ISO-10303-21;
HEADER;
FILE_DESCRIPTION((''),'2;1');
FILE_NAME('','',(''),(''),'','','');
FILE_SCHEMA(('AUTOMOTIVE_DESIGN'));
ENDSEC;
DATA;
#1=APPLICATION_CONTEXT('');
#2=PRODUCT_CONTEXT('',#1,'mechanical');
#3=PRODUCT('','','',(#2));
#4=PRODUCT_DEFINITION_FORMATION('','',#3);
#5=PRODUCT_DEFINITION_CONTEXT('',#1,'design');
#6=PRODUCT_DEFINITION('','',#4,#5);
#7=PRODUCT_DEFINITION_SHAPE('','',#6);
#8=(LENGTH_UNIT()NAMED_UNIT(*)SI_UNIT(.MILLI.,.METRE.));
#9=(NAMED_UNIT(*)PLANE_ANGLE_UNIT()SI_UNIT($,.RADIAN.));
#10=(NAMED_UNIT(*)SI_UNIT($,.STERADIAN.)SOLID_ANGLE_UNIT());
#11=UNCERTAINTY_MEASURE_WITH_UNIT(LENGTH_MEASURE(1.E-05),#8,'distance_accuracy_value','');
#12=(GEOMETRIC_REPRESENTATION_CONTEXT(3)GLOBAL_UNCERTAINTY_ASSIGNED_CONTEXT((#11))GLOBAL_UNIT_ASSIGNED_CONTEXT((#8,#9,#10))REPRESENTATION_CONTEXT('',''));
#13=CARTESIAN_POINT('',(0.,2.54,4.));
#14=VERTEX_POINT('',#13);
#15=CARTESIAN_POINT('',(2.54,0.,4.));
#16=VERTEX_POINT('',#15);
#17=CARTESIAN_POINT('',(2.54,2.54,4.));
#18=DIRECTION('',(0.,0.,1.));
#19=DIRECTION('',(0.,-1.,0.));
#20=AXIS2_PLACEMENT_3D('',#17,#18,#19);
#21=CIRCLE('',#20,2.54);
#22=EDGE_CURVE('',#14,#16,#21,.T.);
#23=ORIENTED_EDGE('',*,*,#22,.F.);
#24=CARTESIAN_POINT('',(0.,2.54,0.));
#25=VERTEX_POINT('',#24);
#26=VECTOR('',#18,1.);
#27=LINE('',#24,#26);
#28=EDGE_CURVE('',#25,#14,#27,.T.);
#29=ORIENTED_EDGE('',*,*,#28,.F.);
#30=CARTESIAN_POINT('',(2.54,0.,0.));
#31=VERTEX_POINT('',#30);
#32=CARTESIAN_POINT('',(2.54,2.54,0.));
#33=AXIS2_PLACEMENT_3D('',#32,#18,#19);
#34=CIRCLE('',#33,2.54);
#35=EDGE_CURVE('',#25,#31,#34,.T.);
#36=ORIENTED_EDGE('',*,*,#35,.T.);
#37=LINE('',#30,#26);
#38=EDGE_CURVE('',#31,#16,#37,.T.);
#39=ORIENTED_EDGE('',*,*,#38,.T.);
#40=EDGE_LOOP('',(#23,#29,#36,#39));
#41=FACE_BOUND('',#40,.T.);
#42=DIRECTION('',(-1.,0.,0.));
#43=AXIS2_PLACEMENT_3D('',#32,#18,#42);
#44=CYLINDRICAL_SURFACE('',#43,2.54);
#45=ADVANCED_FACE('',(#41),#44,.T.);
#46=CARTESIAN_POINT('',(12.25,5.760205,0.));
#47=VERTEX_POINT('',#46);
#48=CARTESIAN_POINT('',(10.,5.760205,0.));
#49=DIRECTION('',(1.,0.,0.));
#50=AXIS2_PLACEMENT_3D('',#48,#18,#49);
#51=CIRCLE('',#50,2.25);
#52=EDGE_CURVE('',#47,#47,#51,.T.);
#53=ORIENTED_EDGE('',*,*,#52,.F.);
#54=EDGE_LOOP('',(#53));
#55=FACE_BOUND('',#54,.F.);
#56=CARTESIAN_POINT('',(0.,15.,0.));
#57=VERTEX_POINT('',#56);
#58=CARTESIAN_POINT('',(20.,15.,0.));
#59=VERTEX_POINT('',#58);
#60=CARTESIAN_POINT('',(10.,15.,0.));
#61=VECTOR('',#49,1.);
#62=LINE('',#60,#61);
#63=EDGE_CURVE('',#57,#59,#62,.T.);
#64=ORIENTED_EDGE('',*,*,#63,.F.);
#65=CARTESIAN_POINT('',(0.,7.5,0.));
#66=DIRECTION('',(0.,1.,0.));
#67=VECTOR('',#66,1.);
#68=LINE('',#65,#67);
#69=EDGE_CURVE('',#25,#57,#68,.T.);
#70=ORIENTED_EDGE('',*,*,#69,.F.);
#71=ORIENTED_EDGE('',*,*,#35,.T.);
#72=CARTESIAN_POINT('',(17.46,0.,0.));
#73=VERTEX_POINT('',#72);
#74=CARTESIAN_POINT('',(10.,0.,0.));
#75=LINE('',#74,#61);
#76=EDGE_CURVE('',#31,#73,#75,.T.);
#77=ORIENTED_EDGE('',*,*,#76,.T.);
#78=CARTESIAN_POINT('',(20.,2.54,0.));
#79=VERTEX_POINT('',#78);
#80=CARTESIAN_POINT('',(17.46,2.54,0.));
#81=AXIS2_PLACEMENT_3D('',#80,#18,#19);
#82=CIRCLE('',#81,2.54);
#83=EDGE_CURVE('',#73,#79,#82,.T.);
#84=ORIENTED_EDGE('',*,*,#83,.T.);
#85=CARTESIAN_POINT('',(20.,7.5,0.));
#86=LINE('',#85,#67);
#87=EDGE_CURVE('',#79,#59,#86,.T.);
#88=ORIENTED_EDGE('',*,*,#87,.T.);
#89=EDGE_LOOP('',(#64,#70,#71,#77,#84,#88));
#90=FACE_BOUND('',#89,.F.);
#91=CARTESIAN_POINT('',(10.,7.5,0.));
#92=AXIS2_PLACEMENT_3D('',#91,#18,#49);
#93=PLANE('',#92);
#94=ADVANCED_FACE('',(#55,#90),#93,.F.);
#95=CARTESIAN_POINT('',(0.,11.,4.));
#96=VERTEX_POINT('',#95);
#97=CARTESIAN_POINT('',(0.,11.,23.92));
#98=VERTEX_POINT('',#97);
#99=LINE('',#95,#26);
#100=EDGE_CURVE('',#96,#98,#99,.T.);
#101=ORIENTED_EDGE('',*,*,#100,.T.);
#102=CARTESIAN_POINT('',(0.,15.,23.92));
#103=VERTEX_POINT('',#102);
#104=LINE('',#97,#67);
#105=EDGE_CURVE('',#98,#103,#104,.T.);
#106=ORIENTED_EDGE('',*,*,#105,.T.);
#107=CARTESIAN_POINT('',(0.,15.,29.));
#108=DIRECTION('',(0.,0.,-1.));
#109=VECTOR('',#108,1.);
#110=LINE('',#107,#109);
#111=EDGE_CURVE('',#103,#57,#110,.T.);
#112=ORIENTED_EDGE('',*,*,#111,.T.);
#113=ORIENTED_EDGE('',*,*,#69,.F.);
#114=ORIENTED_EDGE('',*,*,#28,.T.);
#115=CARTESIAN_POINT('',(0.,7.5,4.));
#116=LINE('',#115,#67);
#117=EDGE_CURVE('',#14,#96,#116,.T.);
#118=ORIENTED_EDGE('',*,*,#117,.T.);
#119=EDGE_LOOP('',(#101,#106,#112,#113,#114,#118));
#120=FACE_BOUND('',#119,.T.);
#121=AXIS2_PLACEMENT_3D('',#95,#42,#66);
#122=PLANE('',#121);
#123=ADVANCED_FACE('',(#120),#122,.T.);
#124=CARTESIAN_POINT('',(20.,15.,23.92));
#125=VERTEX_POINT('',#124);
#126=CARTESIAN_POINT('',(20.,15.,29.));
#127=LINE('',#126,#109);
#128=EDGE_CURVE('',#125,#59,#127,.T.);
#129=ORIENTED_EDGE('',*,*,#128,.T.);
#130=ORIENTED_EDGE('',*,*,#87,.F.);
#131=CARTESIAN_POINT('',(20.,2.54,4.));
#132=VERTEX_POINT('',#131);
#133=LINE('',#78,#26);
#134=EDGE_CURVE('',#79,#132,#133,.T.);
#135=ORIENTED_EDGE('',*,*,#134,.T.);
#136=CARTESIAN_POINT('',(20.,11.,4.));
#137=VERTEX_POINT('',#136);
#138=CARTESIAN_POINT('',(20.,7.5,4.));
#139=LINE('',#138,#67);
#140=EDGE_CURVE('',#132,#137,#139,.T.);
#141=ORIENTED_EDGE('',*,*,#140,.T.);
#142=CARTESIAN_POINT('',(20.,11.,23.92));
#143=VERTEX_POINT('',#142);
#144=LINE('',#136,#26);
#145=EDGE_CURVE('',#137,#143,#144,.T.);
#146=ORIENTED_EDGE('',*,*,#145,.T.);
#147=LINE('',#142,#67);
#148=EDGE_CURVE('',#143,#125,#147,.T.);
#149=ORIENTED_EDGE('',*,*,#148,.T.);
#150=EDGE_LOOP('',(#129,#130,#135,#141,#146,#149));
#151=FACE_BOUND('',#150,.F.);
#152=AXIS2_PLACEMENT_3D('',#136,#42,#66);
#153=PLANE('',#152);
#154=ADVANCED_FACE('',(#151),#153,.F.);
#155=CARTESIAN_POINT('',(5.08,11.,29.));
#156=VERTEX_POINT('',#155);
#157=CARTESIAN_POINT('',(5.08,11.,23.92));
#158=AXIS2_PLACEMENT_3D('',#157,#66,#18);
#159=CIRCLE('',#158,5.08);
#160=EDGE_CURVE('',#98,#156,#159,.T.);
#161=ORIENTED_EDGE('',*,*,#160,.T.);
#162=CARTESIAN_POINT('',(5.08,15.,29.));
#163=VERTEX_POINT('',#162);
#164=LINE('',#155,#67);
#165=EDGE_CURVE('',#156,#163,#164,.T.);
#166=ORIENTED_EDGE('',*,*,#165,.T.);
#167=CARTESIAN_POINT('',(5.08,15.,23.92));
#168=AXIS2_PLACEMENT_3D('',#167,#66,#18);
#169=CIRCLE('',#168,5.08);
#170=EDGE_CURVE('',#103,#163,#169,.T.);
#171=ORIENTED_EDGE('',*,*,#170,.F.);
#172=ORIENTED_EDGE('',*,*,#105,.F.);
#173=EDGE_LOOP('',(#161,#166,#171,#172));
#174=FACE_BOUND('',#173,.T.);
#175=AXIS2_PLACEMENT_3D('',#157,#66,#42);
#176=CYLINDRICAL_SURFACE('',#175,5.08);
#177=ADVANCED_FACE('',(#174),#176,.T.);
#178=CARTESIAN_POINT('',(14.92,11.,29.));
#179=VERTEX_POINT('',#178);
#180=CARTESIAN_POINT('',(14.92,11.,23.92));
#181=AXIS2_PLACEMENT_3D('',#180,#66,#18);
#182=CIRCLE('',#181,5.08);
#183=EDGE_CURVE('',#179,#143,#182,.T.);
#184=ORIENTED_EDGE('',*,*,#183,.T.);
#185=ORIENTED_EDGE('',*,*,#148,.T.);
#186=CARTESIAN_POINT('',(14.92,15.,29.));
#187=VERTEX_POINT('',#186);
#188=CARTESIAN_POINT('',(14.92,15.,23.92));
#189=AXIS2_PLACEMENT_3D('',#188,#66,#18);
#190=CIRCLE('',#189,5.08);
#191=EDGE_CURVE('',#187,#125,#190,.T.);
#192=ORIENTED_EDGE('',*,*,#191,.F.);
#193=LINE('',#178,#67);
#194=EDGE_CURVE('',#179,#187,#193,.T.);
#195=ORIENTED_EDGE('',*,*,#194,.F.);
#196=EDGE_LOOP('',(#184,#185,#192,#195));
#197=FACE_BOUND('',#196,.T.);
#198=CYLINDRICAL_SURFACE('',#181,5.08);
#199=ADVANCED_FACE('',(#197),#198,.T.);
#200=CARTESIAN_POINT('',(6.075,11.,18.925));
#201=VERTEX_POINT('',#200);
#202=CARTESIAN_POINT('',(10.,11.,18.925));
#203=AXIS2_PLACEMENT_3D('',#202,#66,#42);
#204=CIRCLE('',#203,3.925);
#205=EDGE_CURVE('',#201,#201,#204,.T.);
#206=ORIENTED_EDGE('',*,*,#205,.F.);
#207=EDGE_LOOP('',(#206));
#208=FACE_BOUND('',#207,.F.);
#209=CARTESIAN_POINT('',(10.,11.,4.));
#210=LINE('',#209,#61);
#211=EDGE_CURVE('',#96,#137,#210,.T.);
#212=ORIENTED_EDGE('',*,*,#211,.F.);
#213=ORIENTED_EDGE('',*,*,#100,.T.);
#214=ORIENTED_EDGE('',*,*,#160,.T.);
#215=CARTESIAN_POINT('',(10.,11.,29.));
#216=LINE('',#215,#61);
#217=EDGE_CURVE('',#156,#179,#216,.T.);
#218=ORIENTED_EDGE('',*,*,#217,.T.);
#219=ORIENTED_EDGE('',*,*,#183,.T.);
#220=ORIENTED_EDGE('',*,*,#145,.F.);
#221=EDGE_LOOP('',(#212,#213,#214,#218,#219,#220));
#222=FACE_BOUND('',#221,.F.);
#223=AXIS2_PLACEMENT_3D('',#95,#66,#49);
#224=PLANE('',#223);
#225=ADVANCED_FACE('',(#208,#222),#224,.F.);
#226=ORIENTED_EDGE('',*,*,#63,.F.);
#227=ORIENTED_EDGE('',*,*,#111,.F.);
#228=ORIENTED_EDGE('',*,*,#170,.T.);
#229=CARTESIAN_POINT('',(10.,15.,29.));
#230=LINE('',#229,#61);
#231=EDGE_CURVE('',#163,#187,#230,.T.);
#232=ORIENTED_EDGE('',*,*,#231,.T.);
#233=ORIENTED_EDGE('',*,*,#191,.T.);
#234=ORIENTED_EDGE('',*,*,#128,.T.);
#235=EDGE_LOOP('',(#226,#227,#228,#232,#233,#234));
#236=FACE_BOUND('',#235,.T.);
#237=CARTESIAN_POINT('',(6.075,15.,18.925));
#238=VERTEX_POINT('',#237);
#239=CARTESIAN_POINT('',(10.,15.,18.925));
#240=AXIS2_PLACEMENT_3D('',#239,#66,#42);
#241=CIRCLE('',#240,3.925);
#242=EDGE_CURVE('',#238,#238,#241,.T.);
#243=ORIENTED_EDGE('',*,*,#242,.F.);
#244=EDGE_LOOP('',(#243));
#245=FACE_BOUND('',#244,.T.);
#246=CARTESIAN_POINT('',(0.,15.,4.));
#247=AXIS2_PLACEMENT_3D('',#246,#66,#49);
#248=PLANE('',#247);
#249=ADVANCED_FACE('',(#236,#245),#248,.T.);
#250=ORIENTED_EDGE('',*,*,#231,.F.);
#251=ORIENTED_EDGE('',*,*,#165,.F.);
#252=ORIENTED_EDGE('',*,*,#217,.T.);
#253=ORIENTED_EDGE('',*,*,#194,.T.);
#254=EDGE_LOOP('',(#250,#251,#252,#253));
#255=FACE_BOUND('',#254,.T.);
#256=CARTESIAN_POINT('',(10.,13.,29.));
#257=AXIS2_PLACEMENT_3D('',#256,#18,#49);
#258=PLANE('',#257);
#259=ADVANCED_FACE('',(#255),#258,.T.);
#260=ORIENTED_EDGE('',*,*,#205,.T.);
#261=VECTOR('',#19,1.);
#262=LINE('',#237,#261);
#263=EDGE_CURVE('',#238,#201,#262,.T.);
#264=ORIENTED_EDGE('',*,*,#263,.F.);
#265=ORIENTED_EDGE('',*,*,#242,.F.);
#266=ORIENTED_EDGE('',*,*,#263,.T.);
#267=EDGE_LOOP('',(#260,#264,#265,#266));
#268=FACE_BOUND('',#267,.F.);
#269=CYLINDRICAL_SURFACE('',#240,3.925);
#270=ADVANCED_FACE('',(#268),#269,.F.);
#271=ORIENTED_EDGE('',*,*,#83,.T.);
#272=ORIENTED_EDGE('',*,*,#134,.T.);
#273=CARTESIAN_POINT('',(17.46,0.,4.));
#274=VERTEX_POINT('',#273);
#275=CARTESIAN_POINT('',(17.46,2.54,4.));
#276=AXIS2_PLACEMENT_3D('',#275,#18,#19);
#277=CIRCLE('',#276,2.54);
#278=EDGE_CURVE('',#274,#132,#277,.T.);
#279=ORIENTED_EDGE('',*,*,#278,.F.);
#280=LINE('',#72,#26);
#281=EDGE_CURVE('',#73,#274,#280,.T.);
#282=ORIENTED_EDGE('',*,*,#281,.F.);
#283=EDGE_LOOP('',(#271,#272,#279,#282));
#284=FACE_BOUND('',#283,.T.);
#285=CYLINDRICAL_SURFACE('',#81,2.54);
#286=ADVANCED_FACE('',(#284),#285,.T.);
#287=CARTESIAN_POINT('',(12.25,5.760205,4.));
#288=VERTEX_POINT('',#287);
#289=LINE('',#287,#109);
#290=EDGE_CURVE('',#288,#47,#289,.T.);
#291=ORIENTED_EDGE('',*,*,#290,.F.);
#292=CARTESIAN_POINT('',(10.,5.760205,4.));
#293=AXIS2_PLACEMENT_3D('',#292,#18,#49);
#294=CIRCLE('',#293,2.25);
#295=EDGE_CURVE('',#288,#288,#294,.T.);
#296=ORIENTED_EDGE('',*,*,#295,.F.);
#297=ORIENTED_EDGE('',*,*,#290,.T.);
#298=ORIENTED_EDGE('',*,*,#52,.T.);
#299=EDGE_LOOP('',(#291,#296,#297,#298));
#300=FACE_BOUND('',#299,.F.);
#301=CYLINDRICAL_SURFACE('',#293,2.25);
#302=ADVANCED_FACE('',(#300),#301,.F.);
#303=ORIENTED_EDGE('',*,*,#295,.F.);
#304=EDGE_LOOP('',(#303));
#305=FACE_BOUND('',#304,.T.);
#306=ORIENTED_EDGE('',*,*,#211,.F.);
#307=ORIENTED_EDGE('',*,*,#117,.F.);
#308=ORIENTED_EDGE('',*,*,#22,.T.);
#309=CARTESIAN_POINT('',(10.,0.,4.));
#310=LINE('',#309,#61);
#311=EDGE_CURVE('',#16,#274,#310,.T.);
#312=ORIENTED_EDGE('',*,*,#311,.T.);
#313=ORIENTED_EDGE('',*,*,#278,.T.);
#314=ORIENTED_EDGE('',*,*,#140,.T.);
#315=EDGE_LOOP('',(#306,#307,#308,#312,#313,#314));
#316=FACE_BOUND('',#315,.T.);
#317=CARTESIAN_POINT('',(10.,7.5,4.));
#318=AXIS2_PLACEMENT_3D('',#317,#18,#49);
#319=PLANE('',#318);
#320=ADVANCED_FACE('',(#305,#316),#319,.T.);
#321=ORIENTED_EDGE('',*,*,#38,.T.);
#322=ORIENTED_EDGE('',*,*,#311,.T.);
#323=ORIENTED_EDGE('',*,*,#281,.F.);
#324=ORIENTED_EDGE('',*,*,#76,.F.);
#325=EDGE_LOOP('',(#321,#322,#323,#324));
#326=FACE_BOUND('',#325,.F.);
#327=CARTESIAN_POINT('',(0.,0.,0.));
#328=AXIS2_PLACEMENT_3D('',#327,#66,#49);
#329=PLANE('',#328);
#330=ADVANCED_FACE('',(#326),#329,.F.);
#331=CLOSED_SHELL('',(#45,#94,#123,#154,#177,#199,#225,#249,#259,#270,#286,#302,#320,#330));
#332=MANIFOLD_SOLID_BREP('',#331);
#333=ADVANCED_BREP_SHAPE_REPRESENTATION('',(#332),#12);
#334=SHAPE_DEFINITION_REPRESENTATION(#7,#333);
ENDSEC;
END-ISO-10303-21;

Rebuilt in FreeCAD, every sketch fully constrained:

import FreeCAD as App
import Part
import Sketcher
from FreeCAD import Vector
Q = App.Units.Quantity


def edges_at(feature, points):
    """Names of the edges that pass closest to the given points."""
    edges = feature.Shape.Edges
    near = lambda p: min(range(len(edges)), key=lambda i: edges[i].distToShape(Part.Vertex(*p))[0])
    return sorted({f"Edge{near(p) + 1}" for p in points})

doc = App.newDocument("Part")
body = doc.addObject("PartDesign::Body", "Body")

sketch1 = body.newObject("Sketcher::SketchObject", "Sketch")
sketch1.AttachmentSupport = (doc.getObject("XY_Plane"), [""])
sketch1.MapMode = "FlatFace"
sketch1.addGeometry([
    Part.LineSegment(Vector(0, 15, 0), Vector(0, 0, 0)),
    Part.LineSegment(Vector(0, 0, 0), Vector(20, 0, 0)),
    Part.LineSegment(Vector(20, 0, 0), Vector(20, 15, 0)),
    Part.LineSegment(Vector(20, 15, 0), Vector(0, 15, 0)),
], False)
sketch1.addConstraint([
    Sketcher.Constraint("Coincident", 0, 2, 1, 1),
    Sketcher.Constraint("Coincident", 1, 2, 2, 1),
    Sketcher.Constraint("Coincident", 2, 2, 3, 1),
    Sketcher.Constraint("Coincident", 3, 2, 0, 1),
    Sketcher.Constraint("Vertical", 0),
    Sketcher.Constraint("Horizontal", 1),
    Sketcher.Constraint("Vertical", 2),
    Sketcher.Constraint("Horizontal", 3),
    Sketcher.Constraint("Coincident", 0, 2, -1, 1),
    Sketcher.Constraint("DistanceX", 1, 1, 1, 2, Q("20 mm")),
    Sketcher.Constraint("DistanceY", 0, 2, 0, 1, Q("15 mm")),
])
pad1 = body.newObject("PartDesign::Pad", "Pad")
pad1.Profile = sketch1
pad1.Length = 4

sketch2 = body.newObject("Sketcher::SketchObject", "Sketch001")
sketch2.AttachmentSupport = (doc.getObject("XY_Plane"), [""])
sketch2.MapMode = "FlatFace"
sketch2.AttachmentOffset = App.Placement(Vector(0, 0, 4), App.Rotation())
sketch2.addGeometry([
    Part.LineSegment(Vector(0, 15, 0), Vector(0, 11, 0)),
    Part.LineSegment(Vector(0, 11, 0), Vector(20, 11, 0)),
    Part.LineSegment(Vector(20, 11, 0), Vector(20, 15, 0)),
    Part.LineSegment(Vector(20, 15, 0), Vector(0, 15, 0)),
], False)
sketch2.addConstraint([
    Sketcher.Constraint("Coincident", 0, 2, 1, 1),
    Sketcher.Constraint("Coincident", 1, 2, 2, 1),
    Sketcher.Constraint("Coincident", 2, 2, 3, 1),
    Sketcher.Constraint("Coincident", 3, 2, 0, 1),
    Sketcher.Constraint("Vertical", 0),
    Sketcher.Constraint("Horizontal", 1),
    Sketcher.Constraint("Vertical", 2),
    Sketcher.Constraint("Horizontal", 3),
    Sketcher.Constraint("PointOnObject", 0, 2, -2),
    Sketcher.Constraint("DistanceX", 1, 1, 1, 2, Q("20 mm")),
    Sketcher.Constraint("DistanceY", 0, 2, 0, 1, Q("4 mm")),
    Sketcher.Constraint("DistanceY", -1, 1, 0, 2, Q("11 mm")),
])
pad2 = body.newObject("PartDesign::Pad", "Pad001")
pad2.Profile = sketch2
pad2.Length = 25

sketch3 = body.newObject("Sketcher::SketchObject", "Sketch002")
sketch3.AttachmentSupport = (doc.getObject("XY_Plane"), [""])
sketch3.MapMode = "FlatFace"
sketch3.AttachmentOffset = App.Placement(Vector(0, 0, 4), App.Rotation())
sketch3.addGeometry(Part.Circle(Vector(10, 5.8, 0), Vector(0, 0, 1), 2.2), False)
sketch3.addConstraint([
    Sketcher.Constraint("Diameter", 0, Q("4.5 mm")),
    Sketcher.Constraint("DistanceX", -1, 1, 0, 3, Q("10 mm")),
    Sketcher.Constraint("DistanceY", -1, 1, 0, 3, Q("5.760205 mm")),
])
pocket1 = body.newObject("PartDesign::Pocket", "Pocket")
pocket1.Profile = sketch3
pocket1.Length = 25.4

sketch4 = body.newObject("Sketcher::SketchObject", "Sketch003")
sketch4.AttachmentSupport = (doc.getObject("XZ_Plane"), [""])
sketch4.MapMode = "FlatFace"
sketch4.AttachmentOffset = App.Placement(Vector(0, 0, -15), App.Rotation())
sketch4.addGeometry(Part.Circle(Vector(10, 18.9, 0), Vector(0, 0, 1), 3.9), False)
sketch4.addConstraint([
    Sketcher.Constraint("Diameter", 0, Q("7.85 mm")),
    Sketcher.Constraint("DistanceX", -1, 1, 0, 3, Q("10 mm")),
    Sketcher.Constraint("DistanceY", -1, 1, 0, 3, Q("18.925 mm")),
])
pocket2 = body.newObject("PartDesign::Pocket", "Pocket001")
pocket2.Profile = sketch4
pocket2.Length = 25.4
pocket2.Reversed = True
doc.recompute()

fillet = body.newObject("PartDesign::Fillet", "Fillet")
fillet.Base = (pocket2, edges_at(pocket2, [(20, 0, 2), (0, 0, 2)]))
fillet.Radius = 2.54
doc.recompute()

fillet2 = body.newObject("PartDesign::Fillet", "Fillet001")
fillet2.Base = (fillet, edges_at(fillet, [(20, 13, 29), (0, 13, 29)]))
fillet2.Radius = 5.08

doc.recompute()
